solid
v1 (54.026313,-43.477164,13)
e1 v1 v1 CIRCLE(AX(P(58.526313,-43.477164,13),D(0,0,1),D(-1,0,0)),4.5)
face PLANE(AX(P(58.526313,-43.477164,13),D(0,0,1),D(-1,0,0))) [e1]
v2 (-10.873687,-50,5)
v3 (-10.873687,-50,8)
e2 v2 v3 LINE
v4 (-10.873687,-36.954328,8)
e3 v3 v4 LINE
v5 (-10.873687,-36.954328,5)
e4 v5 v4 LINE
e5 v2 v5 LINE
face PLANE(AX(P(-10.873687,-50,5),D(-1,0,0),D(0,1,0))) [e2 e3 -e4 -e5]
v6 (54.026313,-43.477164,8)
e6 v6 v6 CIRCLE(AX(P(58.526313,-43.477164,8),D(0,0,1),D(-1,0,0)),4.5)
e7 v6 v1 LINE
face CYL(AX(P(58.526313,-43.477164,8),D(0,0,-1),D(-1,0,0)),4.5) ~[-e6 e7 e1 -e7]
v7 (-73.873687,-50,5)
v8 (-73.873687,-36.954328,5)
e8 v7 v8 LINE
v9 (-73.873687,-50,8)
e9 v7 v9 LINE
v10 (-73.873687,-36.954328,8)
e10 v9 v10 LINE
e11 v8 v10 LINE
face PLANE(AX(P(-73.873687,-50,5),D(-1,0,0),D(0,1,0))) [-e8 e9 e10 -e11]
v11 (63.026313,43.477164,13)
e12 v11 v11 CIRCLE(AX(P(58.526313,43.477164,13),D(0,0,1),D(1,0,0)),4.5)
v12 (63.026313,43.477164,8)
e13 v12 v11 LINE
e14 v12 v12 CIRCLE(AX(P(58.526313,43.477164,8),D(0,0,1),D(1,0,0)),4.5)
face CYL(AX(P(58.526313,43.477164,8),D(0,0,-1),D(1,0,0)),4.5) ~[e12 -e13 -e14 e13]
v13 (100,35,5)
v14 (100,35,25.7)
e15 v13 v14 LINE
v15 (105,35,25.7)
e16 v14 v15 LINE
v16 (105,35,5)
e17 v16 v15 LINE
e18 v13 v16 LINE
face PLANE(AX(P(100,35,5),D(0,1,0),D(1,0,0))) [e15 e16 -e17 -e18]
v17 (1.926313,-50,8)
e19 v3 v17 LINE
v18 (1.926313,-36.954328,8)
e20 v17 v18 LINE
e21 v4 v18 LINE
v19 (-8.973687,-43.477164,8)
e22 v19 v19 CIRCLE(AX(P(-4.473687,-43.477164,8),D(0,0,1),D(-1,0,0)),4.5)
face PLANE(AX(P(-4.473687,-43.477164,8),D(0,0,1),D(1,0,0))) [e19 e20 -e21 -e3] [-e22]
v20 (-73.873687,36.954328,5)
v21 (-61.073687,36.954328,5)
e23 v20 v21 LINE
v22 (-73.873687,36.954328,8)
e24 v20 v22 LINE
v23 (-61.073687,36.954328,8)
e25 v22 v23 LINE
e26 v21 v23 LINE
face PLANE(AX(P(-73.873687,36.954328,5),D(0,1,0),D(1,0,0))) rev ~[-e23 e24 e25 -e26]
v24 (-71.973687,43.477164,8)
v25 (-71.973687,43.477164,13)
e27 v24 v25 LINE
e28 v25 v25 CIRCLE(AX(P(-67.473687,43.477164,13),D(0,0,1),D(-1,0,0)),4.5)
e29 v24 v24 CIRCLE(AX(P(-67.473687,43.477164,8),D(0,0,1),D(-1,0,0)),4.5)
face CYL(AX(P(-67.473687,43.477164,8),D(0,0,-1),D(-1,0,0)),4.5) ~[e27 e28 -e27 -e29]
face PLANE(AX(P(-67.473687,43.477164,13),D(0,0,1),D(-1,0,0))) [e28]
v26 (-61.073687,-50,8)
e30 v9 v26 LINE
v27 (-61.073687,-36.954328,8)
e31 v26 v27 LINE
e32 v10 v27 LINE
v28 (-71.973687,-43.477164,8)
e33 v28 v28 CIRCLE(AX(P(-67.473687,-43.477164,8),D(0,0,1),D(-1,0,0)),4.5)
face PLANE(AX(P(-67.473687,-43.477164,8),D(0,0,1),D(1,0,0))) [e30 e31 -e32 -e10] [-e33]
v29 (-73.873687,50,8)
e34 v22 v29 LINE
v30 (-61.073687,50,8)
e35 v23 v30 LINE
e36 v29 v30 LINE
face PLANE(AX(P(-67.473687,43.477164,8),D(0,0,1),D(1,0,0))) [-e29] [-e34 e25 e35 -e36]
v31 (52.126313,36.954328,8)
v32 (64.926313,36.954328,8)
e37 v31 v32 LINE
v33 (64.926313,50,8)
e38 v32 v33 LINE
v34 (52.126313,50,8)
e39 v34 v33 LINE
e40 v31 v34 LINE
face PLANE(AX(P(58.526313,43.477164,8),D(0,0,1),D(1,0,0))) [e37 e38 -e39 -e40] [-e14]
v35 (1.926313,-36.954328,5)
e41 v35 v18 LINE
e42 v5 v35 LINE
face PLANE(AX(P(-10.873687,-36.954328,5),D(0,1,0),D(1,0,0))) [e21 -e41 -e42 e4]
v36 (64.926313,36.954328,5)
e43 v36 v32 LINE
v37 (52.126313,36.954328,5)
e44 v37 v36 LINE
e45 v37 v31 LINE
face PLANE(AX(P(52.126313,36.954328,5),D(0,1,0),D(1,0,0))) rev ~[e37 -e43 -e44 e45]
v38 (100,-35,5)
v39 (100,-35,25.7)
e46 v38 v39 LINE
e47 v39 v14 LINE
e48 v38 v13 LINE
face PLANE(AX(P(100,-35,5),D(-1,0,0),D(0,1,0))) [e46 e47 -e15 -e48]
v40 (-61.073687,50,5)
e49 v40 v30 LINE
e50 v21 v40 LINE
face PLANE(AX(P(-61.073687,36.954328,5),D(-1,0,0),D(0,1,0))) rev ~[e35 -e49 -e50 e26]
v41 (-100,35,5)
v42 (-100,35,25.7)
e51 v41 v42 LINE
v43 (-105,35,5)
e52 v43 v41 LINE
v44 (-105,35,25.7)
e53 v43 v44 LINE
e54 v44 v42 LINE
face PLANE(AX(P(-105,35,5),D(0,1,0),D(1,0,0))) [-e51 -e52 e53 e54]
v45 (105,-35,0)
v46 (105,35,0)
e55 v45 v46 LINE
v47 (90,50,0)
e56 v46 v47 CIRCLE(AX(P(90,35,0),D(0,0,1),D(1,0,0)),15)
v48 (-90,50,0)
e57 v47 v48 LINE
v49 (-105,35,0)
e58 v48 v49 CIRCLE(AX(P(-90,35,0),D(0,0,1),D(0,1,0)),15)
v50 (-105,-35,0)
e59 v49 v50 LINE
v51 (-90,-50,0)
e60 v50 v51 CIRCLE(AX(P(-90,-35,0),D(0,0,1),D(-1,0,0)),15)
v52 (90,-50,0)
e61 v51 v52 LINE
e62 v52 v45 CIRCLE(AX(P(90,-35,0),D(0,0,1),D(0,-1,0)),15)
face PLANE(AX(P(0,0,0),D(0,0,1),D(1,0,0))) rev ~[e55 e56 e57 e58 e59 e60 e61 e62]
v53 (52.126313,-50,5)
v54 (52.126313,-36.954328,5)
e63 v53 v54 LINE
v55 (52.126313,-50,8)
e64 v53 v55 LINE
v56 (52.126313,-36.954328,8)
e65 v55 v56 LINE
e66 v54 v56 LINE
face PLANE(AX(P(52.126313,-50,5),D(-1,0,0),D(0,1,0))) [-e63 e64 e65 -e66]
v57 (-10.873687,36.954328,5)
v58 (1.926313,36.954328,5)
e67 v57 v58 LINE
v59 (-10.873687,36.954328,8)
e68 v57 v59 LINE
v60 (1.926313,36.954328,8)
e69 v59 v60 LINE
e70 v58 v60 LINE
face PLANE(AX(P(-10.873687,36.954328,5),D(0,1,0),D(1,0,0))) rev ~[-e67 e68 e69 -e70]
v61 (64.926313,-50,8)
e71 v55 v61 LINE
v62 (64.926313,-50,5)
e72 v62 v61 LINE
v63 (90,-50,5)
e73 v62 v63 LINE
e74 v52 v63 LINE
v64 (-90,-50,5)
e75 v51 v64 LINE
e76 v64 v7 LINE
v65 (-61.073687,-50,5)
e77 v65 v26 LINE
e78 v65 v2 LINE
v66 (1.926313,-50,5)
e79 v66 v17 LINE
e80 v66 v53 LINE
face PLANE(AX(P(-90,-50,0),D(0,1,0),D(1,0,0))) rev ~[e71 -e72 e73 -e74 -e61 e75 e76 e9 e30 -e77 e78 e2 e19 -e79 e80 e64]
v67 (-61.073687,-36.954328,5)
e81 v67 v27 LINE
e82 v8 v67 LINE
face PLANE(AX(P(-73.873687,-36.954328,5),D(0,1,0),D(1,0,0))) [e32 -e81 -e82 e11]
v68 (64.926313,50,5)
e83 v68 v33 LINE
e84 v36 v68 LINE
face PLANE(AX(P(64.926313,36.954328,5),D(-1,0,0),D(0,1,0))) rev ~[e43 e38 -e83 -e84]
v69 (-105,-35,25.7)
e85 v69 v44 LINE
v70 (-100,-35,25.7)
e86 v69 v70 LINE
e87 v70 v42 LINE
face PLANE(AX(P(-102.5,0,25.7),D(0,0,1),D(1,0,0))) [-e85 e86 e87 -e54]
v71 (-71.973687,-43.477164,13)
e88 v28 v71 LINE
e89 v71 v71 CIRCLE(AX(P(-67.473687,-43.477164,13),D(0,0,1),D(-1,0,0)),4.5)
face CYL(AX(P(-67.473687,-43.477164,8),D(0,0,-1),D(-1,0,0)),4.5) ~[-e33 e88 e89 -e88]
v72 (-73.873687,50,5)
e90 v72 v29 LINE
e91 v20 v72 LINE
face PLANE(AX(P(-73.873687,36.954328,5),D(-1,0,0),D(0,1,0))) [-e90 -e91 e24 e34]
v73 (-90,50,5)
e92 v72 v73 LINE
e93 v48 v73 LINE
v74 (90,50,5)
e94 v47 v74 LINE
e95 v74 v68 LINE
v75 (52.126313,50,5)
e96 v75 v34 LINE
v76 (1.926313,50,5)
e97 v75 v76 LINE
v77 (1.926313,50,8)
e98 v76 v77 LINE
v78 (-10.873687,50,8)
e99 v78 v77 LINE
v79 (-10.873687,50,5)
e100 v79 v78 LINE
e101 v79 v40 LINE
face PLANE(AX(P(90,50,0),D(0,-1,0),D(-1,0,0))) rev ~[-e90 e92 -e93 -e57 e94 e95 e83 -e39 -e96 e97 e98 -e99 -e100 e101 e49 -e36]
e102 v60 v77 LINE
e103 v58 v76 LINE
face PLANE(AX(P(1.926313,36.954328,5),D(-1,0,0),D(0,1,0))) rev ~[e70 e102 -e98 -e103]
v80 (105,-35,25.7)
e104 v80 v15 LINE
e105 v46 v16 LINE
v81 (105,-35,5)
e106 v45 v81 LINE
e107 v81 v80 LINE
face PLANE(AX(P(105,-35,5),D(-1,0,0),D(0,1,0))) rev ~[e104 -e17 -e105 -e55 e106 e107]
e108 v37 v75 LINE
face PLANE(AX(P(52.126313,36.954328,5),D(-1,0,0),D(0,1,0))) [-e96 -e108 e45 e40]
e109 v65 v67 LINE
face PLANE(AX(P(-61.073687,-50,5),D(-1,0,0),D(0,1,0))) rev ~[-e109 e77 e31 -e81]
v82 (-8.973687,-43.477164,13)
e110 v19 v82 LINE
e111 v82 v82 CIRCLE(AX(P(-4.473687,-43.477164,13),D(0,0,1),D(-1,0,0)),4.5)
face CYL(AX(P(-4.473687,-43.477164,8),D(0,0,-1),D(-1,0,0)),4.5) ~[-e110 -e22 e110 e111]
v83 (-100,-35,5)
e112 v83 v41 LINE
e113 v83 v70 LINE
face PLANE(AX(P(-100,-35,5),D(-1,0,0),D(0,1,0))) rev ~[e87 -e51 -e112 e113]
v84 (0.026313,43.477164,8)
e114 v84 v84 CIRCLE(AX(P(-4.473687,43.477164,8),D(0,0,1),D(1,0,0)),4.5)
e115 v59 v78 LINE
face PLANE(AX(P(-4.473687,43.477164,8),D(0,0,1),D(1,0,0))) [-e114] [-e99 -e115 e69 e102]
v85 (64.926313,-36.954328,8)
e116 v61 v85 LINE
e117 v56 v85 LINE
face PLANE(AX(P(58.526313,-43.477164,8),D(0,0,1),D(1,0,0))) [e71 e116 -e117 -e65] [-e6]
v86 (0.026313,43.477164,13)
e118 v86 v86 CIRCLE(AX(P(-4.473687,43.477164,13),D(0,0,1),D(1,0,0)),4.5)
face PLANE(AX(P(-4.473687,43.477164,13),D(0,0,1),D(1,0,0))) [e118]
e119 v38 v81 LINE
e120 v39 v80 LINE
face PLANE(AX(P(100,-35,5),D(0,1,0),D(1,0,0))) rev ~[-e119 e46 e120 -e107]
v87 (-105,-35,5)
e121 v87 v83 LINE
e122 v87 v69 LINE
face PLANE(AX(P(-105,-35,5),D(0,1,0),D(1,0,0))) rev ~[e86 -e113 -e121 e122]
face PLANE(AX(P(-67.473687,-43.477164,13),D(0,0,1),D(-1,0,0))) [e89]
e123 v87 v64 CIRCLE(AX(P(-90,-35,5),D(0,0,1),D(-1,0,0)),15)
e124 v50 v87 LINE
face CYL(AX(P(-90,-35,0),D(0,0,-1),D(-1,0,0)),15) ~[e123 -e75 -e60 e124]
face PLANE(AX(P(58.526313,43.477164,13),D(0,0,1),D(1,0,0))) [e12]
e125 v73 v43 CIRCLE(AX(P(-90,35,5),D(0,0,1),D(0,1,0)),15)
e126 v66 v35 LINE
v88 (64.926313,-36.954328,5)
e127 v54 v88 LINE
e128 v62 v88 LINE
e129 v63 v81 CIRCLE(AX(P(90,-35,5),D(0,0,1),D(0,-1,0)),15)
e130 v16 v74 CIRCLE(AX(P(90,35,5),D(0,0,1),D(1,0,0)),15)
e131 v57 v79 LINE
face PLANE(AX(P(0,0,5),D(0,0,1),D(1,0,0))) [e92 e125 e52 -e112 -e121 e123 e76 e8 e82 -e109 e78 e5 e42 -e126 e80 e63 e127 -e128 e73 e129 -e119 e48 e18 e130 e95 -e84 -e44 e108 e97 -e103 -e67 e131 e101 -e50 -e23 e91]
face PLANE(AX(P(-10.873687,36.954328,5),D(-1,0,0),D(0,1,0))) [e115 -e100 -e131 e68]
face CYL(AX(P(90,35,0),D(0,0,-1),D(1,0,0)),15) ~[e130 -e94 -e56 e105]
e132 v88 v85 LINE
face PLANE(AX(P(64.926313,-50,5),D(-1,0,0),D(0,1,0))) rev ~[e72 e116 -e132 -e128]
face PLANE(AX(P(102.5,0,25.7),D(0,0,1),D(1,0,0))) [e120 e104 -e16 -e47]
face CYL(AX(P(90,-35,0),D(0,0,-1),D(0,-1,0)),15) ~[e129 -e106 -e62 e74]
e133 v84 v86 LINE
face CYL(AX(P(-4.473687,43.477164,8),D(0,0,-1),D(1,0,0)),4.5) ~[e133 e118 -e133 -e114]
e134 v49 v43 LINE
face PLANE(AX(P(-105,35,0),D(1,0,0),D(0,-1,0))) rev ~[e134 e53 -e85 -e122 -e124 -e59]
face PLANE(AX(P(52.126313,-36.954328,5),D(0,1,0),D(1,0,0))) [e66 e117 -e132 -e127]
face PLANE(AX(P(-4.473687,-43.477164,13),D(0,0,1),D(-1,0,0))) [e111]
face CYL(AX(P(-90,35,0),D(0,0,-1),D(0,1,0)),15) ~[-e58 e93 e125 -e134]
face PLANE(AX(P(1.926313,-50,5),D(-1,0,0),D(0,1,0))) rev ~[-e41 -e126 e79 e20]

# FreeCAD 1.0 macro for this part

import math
import FreeCAD as App
import Part
import Sketcher
Q = App.Units.Quantity


def add_polygon(sketch, points):
    """Adds a closed chain of lines whose ends are joined by coincident constraints."""
    first, n = sketch.GeometryCount, len(points)
    for a, b in zip(points, points[1:] + points[:1]):
        sketch.addGeometry(Part.LineSegment(App.Vector(*a, 0), App.Vector(*b, 0)), False)
    for i in range(n):
        sketch.addConstraint(Sketcher.Constraint("Coincident", first + i, 2, first + (i + 1) % n, 1))

doc = App.newDocument("Part")
params = doc.addObject("Spreadsheet::Sheet", "Params")
for row, (alias, value) in enumerate([
    ("sketch1_radius", "15 mm"),
    ("sketch1_width", "180 mm"),
    ("sketch1_height", "70 mm"),
    ("pad1_length", "5 mm"),
    ("sketch2_width", "5 mm"),
    ("sketch2_height", "70 mm"),
    ("pad2_length", "20.7 mm"),
    ("sketch3_width", "12.8 mm"),
    ("pad3_length", "3 mm"),
    ("sketch4_diameter", "9 mm"),
    ("pad4_length", "5 mm"),
], start=1):
    params.set(f"A{row}", alias)
    params.set(f"B{row}", "=" + value)
    params.setAlias(f"B{row}", alias)

body = doc.addObject("PartDesign::Body", "Body")

sketch1 = doc.addObject("Sketcher::SketchObject", "Sketch")
body.addObject(sketch1)
sketch1.AttachmentSupport = (doc.XY_Plane, [""])
sketch1.MapMode = "FlatFace"
sketch1.addGeometry([
    Part.LineSegment(App.Vector(-90, -50, 0), App.Vector(90, -50, 0)),
    Part.ArcOfCircle(Part.Circle(App.Vector(90, -35, 0), App.Vector(0, 0, 1), 15), math.radians(-90), math.radians(0)),
    Part.LineSegment(App.Vector(105, -35, 0), App.Vector(105, 35, 0)),
    Part.ArcOfCircle(Part.Circle(App.Vector(90, 35, 0), App.Vector(0, 0, 1), 15), math.radians(0), math.radians(90)),
    Part.LineSegment(App.Vector(90, 50, 0), App.Vector(-90, 50, 0)),
    Part.ArcOfCircle(Part.Circle(App.Vector(-90, 35, 0), App.Vector(0, 0, 1), 15), math.radians(90), math.radians(180)),
    Part.LineSegment(App.Vector(-105, 35, 0), App.Vector(-105, -35, 0)),
    Part.ArcOfCircle(Part.Circle(App.Vector(-90, -35, 0), App.Vector(0, 0, 1), 15), math.radians(180), math.radians(270)),
], False)
sketch1.addConstraint([
    Sketcher.Constraint("Tangent", 0, 2, 1, 1),
    Sketcher.Constraint("Tangent", 1, 2, 2, 1),
    Sketcher.Constraint("Tangent", 2, 2, 3, 1),
    Sketcher.Constraint("Tangent", 3, 2, 4, 1),
    Sketcher.Constraint("Tangent", 4, 2, 5, 1),
    Sketcher.Constraint("Tangent", 5, 2, 6, 1),
    Sketcher.Constraint("Tangent", 6, 2, 7, 1),
    Sketcher.Constraint("Tangent", 7, 2, 0, 1),
    Sketcher.Constraint("Horizontal", 0),
    Sketcher.Constraint("Vertical", 2),
    Sketcher.Constraint("Horizontal", 4),
    Sketcher.Constraint("Vertical", 6),
    Sketcher.Constraint("Equal", 1, 3),
    Sketcher.Constraint("Equal", 3, 5),
    Sketcher.Constraint("Equal", 5, 7),
    Sketcher.Constraint("Symmetric", 1, 3, 5, 3, -1, 1),
    Sketcher.Constraint("Radius", 1, Q("15 mm")),
    Sketcher.Constraint("DistanceX", 0, 1, 0, 2, Q("180 mm")),
    Sketcher.Constraint("DistanceY", 2, 1, 2, 2, Q("70 mm")),
])
sketch1.setExpression("Constraints[16]", "Params.sketch1_radius")
sketch1.setExpression("Constraints[17]", "Params.sketch1_width")
sketch1.setExpression("Constraints[18]", "Params.sketch1_height")
pad1 = doc.addObject("PartDesign::Pad", "Pad")
body.addObject(pad1)
pad1.Profile = sketch1
pad1.setExpression("Length", "Params.pad1_length")

sketch2 = doc.addObject("Sketcher::SketchObject", "Sketch001")
body.addObject(sketch2)
sketch2.AttachmentSupport = (doc.XY_Plane, [""])
sketch2.MapMode = "FlatFace"
sketch2.AttachmentOffset = App.Placement(App.Vector(0, 0, 5), App.Rotation())
add_polygon(sketch2, [(100, 35), (100, -35), (105, -35), (105, 35)])
add_polygon(sketch2, [(-105, 35), (-105, -35), (-100, -35), (-100, 35)])
sketch2.addConstraint([
    Sketcher.Constraint("Vertical", 0),
    Sketcher.Constraint("Horizontal", 1),
    Sketcher.Constraint("Vertical", 2),
    Sketcher.Constraint("Horizontal", 3),
    Sketcher.Constraint("Vertical", 4),
    Sketcher.Constraint("Horizontal", 5),
    Sketcher.Constraint("Vertical", 6),
    Sketcher.Constraint("Horizontal", 7),
    Sketcher.Constraint("Symmetric", 2, 2, 4, 2, -1, 1),
    Sketcher.Constraint("Symmetric", 0, 2, 6, 2, -1, 1),
    Sketcher.Constraint("Horizontal", 1, 2, 4, 2),
    Sketcher.Constraint("DistanceX", 1, 1, 1, 2, Q("5 mm")),
    Sketcher.Constraint("DistanceY", 0, 2, 0, 1, Q("70 mm")),
    Sketcher.Constraint("DistanceX", -1, 1, 0, 2, Q("100 mm")),
])
sketch2.setExpression("Constraints[19]", "Params.sketch2_width")
sketch2.setExpression("Constraints[20]", "Params.sketch2_height")
pad2 = doc.addObject("PartDesign::Pad", "Pad001")
body.addObject(pad2)
pad2.Profile = sketch2
pad2.setExpression("Length", "Params.pad2_length")

sketch3 = doc.addObject("Sketcher::SketchObject", "Sketch002")
body.addObject(sketch3)
sketch3.AttachmentSupport = (doc.XY_Plane, [""])
sketch3.MapMode = "FlatFace"
sketch3.AttachmentOffset = App.Placement(App.Vector(0, 0, 5), App.Rotation())
add_polygon(sketch3, [(-74, 50), (-74, 37), (-61, 37), (-61, 50)])
add_polygon(sketch3, [(-11, 50), (-11, 37), (2, 37), (2, 50)])
add_polygon(sketch3, [(52, 50), (52, 37), (65, 37), (65, 50)])
add_polygon(sketch3, [(-74, -37), (-74, -50), (-61, -50), (-61, -37)])
add_polygon(sketch3, [(-11, -37), (-11, -50), (2, -50), (2, -37)])
add_polygon(sketch3, [(52, -37), (52, -50), (65, -50), (65, -37)])
sketch3.addConstraint([
    Sketcher.Constraint("Vertical", 0),
    Sketcher.Constraint("Horizontal", 1),
    Sketcher.Constraint("Vertical", 2),
    Sketcher.Constraint("Horizontal", 3),
    Sketcher.Constraint("Vertical", 4),
    Sketcher.Constraint("Horizontal", 5),
    Sketcher.Constraint("Vertical", 6),
    Sketcher.Constraint("Horizontal", 7),
    Sketcher.Constraint("Vertical", 8),
    Sketcher.Constraint("Horizontal", 9),
    Sketcher.Constraint("Vertical", 10),
    Sketcher.Constraint("Horizontal", 11),
    Sketcher.Constraint("Vertical", 12),
    Sketcher.Constraint("Horizontal", 13),
    Sketcher.Constraint("Vertical", 14),
    Sketcher.Constraint("Horizontal", 15),
    Sketcher.Constraint("Vertical", 16),
    Sketcher.Constraint("Horizontal", 17),
    Sketcher.Constraint("Vertical", 18),
    Sketcher.Constraint("Horizontal", 19),
    Sketcher.Constraint("Vertical", 20),
    Sketcher.Constraint("Horizontal", 21),
    Sketcher.Constraint("Vertical", 22),
    Sketcher.Constraint("Horizontal", 23),
    Sketcher.Constraint("Symmetric", 3, 2, 12, 2, -1),
    Sketcher.Constraint("Symmetric", 1, 2, 14, 2, -1),
    Sketcher.Constraint("Symmetric", 7, 2, 16, 2, -1),
    Sketcher.Constraint("Symmetric", 5, 2, 18, 2, -1),
    Sketcher.Constraint("Symmetric", 11, 2, 20, 2, -1),
    Sketcher.Constraint("Symmetric", 9, 2, 22, 2, -1),
    Sketcher.Constraint("Horizontal", 1, 2, 4, 2),
    Sketcher.Constraint("Horizontal", 3, 2, 6, 2),
    Sketcher.Constraint("Horizontal", 5, 2, 8, 2),
    Sketcher.Constraint("Horizontal", 7, 2, 10, 2),
    Sketcher.Constraint("Equal", 3, 5),
    Sketcher.Constraint("Equal", 7, 9),
    Sketcher.Constraint("DistanceX", 1, 1, 1, 2, Q("12.8 mm")),
    Sketcher.Constraint("DistanceY", -1, 1, 2, 2, Q("50 mm")),
    Sketcher.Constraint("DistanceX", 0, 2, 4, 2, Q("63 mm")),
    Sketcher.Constraint("DistanceX", 4, 2, 8, 2, Q("63 mm")),
    Sketcher.Constraint("DistanceY", 0, 2, 0, 1, Q("13.045672 mm")),
    Sketcher.Constraint("DistanceX", 0, 2, -1, 1, Q("73.873687 mm")),
])
sketch3.setExpression("Constraints[60]", "Params.sketch3_width")
pad3 = doc.addObject("PartDesign::Pad", "Pad002")
body.addObject(pad3)
pad3.Profile = sketch3
pad3.setExpression("Length", "Params.pad3_length")

sketch4 = doc.addObject("Sketcher::SketchObject", "Sketch003")
body.addObject(sketch4)
sketch4.AttachmentSupport = (doc.XY_Plane, [""])
sketch4.MapMode = "FlatFace"
sketch4.AttachmentOffset = App.Placement(App.Vector(0, 0, 8), App.Rotation())
sketch4.addGeometry([
    Part.Circle(App.Vector(-67.5, 43.5, 0), App.Vector(0, 0, 1), 4.5),
    Part.Circle(App.Vector(-4.5, 43.5, 0), App.Vector(0, 0, 1), 4.5),
    Part.Circle(App.Vector(58.5, 43.5, 0), App.Vector(0, 0, 1), 4.5),
    Part.Circle(App.Vector(58.5, -43.5, 0), App.Vector(0, 0, 1), 4.5),
    Part.Circle(App.Vector(-4.5, -43.5, 0), App.Vector(0, 0, 1), 4.5),
    Part.Circle(App.Vector(-67.5, -43.5, 0), App.Vector(0, 0, 1), 4.5),
], False)
sketch4.addConstraint([
    Sketcher.Constraint("Equal", 0, 1),
    Sketcher.Constraint("Equal", 1, 2),
    Sketcher.Constraint("Equal", 2, 3),
    Sketcher.Constraint("Equal", 3, 4),
    Sketcher.Constraint("Equal", 4, 5),
    Sketcher.Constraint("Symmetric", 2, 3, 3, 3, -1),
    Sketcher.Constraint("Symmetric", 1, 3, 4, 3, -1),
    Sketcher.Constraint("Symmetric", 0, 3, 5, 3, -1),
    Sketcher.Constraint("Horizontal", 0, 3, 1, 3),
    Sketcher.Constraint("Horizontal", 1, 3, 2, 3),
    Sketcher.Constraint("Diameter", 0, Q("9 mm")),
    Sketcher.Constraint("DistanceX", 0, 3, 1, 3, Q("63 mm")),
    Sketcher.Constraint("DistanceX", 1, 3, 2, 3, Q("63 mm")),
    Sketcher.Constraint("DistanceY", 3, 3, 2, 3, Q("86.954328 mm")),
    Sketcher.Constraint("DistanceX", 0, 3, -1, 1, Q("67.473687 mm")),
])
sketch4.setExpression("Constraints[10]", "Params.sketch4_diameter")
pad4 = doc.addObject("PartDesign::Pad", "Pad003")
body.addObject(pad4)
pad4.Profile = sketch4
pad4.setExpression("Length", "Params.pad4_length")

doc.recompute()
